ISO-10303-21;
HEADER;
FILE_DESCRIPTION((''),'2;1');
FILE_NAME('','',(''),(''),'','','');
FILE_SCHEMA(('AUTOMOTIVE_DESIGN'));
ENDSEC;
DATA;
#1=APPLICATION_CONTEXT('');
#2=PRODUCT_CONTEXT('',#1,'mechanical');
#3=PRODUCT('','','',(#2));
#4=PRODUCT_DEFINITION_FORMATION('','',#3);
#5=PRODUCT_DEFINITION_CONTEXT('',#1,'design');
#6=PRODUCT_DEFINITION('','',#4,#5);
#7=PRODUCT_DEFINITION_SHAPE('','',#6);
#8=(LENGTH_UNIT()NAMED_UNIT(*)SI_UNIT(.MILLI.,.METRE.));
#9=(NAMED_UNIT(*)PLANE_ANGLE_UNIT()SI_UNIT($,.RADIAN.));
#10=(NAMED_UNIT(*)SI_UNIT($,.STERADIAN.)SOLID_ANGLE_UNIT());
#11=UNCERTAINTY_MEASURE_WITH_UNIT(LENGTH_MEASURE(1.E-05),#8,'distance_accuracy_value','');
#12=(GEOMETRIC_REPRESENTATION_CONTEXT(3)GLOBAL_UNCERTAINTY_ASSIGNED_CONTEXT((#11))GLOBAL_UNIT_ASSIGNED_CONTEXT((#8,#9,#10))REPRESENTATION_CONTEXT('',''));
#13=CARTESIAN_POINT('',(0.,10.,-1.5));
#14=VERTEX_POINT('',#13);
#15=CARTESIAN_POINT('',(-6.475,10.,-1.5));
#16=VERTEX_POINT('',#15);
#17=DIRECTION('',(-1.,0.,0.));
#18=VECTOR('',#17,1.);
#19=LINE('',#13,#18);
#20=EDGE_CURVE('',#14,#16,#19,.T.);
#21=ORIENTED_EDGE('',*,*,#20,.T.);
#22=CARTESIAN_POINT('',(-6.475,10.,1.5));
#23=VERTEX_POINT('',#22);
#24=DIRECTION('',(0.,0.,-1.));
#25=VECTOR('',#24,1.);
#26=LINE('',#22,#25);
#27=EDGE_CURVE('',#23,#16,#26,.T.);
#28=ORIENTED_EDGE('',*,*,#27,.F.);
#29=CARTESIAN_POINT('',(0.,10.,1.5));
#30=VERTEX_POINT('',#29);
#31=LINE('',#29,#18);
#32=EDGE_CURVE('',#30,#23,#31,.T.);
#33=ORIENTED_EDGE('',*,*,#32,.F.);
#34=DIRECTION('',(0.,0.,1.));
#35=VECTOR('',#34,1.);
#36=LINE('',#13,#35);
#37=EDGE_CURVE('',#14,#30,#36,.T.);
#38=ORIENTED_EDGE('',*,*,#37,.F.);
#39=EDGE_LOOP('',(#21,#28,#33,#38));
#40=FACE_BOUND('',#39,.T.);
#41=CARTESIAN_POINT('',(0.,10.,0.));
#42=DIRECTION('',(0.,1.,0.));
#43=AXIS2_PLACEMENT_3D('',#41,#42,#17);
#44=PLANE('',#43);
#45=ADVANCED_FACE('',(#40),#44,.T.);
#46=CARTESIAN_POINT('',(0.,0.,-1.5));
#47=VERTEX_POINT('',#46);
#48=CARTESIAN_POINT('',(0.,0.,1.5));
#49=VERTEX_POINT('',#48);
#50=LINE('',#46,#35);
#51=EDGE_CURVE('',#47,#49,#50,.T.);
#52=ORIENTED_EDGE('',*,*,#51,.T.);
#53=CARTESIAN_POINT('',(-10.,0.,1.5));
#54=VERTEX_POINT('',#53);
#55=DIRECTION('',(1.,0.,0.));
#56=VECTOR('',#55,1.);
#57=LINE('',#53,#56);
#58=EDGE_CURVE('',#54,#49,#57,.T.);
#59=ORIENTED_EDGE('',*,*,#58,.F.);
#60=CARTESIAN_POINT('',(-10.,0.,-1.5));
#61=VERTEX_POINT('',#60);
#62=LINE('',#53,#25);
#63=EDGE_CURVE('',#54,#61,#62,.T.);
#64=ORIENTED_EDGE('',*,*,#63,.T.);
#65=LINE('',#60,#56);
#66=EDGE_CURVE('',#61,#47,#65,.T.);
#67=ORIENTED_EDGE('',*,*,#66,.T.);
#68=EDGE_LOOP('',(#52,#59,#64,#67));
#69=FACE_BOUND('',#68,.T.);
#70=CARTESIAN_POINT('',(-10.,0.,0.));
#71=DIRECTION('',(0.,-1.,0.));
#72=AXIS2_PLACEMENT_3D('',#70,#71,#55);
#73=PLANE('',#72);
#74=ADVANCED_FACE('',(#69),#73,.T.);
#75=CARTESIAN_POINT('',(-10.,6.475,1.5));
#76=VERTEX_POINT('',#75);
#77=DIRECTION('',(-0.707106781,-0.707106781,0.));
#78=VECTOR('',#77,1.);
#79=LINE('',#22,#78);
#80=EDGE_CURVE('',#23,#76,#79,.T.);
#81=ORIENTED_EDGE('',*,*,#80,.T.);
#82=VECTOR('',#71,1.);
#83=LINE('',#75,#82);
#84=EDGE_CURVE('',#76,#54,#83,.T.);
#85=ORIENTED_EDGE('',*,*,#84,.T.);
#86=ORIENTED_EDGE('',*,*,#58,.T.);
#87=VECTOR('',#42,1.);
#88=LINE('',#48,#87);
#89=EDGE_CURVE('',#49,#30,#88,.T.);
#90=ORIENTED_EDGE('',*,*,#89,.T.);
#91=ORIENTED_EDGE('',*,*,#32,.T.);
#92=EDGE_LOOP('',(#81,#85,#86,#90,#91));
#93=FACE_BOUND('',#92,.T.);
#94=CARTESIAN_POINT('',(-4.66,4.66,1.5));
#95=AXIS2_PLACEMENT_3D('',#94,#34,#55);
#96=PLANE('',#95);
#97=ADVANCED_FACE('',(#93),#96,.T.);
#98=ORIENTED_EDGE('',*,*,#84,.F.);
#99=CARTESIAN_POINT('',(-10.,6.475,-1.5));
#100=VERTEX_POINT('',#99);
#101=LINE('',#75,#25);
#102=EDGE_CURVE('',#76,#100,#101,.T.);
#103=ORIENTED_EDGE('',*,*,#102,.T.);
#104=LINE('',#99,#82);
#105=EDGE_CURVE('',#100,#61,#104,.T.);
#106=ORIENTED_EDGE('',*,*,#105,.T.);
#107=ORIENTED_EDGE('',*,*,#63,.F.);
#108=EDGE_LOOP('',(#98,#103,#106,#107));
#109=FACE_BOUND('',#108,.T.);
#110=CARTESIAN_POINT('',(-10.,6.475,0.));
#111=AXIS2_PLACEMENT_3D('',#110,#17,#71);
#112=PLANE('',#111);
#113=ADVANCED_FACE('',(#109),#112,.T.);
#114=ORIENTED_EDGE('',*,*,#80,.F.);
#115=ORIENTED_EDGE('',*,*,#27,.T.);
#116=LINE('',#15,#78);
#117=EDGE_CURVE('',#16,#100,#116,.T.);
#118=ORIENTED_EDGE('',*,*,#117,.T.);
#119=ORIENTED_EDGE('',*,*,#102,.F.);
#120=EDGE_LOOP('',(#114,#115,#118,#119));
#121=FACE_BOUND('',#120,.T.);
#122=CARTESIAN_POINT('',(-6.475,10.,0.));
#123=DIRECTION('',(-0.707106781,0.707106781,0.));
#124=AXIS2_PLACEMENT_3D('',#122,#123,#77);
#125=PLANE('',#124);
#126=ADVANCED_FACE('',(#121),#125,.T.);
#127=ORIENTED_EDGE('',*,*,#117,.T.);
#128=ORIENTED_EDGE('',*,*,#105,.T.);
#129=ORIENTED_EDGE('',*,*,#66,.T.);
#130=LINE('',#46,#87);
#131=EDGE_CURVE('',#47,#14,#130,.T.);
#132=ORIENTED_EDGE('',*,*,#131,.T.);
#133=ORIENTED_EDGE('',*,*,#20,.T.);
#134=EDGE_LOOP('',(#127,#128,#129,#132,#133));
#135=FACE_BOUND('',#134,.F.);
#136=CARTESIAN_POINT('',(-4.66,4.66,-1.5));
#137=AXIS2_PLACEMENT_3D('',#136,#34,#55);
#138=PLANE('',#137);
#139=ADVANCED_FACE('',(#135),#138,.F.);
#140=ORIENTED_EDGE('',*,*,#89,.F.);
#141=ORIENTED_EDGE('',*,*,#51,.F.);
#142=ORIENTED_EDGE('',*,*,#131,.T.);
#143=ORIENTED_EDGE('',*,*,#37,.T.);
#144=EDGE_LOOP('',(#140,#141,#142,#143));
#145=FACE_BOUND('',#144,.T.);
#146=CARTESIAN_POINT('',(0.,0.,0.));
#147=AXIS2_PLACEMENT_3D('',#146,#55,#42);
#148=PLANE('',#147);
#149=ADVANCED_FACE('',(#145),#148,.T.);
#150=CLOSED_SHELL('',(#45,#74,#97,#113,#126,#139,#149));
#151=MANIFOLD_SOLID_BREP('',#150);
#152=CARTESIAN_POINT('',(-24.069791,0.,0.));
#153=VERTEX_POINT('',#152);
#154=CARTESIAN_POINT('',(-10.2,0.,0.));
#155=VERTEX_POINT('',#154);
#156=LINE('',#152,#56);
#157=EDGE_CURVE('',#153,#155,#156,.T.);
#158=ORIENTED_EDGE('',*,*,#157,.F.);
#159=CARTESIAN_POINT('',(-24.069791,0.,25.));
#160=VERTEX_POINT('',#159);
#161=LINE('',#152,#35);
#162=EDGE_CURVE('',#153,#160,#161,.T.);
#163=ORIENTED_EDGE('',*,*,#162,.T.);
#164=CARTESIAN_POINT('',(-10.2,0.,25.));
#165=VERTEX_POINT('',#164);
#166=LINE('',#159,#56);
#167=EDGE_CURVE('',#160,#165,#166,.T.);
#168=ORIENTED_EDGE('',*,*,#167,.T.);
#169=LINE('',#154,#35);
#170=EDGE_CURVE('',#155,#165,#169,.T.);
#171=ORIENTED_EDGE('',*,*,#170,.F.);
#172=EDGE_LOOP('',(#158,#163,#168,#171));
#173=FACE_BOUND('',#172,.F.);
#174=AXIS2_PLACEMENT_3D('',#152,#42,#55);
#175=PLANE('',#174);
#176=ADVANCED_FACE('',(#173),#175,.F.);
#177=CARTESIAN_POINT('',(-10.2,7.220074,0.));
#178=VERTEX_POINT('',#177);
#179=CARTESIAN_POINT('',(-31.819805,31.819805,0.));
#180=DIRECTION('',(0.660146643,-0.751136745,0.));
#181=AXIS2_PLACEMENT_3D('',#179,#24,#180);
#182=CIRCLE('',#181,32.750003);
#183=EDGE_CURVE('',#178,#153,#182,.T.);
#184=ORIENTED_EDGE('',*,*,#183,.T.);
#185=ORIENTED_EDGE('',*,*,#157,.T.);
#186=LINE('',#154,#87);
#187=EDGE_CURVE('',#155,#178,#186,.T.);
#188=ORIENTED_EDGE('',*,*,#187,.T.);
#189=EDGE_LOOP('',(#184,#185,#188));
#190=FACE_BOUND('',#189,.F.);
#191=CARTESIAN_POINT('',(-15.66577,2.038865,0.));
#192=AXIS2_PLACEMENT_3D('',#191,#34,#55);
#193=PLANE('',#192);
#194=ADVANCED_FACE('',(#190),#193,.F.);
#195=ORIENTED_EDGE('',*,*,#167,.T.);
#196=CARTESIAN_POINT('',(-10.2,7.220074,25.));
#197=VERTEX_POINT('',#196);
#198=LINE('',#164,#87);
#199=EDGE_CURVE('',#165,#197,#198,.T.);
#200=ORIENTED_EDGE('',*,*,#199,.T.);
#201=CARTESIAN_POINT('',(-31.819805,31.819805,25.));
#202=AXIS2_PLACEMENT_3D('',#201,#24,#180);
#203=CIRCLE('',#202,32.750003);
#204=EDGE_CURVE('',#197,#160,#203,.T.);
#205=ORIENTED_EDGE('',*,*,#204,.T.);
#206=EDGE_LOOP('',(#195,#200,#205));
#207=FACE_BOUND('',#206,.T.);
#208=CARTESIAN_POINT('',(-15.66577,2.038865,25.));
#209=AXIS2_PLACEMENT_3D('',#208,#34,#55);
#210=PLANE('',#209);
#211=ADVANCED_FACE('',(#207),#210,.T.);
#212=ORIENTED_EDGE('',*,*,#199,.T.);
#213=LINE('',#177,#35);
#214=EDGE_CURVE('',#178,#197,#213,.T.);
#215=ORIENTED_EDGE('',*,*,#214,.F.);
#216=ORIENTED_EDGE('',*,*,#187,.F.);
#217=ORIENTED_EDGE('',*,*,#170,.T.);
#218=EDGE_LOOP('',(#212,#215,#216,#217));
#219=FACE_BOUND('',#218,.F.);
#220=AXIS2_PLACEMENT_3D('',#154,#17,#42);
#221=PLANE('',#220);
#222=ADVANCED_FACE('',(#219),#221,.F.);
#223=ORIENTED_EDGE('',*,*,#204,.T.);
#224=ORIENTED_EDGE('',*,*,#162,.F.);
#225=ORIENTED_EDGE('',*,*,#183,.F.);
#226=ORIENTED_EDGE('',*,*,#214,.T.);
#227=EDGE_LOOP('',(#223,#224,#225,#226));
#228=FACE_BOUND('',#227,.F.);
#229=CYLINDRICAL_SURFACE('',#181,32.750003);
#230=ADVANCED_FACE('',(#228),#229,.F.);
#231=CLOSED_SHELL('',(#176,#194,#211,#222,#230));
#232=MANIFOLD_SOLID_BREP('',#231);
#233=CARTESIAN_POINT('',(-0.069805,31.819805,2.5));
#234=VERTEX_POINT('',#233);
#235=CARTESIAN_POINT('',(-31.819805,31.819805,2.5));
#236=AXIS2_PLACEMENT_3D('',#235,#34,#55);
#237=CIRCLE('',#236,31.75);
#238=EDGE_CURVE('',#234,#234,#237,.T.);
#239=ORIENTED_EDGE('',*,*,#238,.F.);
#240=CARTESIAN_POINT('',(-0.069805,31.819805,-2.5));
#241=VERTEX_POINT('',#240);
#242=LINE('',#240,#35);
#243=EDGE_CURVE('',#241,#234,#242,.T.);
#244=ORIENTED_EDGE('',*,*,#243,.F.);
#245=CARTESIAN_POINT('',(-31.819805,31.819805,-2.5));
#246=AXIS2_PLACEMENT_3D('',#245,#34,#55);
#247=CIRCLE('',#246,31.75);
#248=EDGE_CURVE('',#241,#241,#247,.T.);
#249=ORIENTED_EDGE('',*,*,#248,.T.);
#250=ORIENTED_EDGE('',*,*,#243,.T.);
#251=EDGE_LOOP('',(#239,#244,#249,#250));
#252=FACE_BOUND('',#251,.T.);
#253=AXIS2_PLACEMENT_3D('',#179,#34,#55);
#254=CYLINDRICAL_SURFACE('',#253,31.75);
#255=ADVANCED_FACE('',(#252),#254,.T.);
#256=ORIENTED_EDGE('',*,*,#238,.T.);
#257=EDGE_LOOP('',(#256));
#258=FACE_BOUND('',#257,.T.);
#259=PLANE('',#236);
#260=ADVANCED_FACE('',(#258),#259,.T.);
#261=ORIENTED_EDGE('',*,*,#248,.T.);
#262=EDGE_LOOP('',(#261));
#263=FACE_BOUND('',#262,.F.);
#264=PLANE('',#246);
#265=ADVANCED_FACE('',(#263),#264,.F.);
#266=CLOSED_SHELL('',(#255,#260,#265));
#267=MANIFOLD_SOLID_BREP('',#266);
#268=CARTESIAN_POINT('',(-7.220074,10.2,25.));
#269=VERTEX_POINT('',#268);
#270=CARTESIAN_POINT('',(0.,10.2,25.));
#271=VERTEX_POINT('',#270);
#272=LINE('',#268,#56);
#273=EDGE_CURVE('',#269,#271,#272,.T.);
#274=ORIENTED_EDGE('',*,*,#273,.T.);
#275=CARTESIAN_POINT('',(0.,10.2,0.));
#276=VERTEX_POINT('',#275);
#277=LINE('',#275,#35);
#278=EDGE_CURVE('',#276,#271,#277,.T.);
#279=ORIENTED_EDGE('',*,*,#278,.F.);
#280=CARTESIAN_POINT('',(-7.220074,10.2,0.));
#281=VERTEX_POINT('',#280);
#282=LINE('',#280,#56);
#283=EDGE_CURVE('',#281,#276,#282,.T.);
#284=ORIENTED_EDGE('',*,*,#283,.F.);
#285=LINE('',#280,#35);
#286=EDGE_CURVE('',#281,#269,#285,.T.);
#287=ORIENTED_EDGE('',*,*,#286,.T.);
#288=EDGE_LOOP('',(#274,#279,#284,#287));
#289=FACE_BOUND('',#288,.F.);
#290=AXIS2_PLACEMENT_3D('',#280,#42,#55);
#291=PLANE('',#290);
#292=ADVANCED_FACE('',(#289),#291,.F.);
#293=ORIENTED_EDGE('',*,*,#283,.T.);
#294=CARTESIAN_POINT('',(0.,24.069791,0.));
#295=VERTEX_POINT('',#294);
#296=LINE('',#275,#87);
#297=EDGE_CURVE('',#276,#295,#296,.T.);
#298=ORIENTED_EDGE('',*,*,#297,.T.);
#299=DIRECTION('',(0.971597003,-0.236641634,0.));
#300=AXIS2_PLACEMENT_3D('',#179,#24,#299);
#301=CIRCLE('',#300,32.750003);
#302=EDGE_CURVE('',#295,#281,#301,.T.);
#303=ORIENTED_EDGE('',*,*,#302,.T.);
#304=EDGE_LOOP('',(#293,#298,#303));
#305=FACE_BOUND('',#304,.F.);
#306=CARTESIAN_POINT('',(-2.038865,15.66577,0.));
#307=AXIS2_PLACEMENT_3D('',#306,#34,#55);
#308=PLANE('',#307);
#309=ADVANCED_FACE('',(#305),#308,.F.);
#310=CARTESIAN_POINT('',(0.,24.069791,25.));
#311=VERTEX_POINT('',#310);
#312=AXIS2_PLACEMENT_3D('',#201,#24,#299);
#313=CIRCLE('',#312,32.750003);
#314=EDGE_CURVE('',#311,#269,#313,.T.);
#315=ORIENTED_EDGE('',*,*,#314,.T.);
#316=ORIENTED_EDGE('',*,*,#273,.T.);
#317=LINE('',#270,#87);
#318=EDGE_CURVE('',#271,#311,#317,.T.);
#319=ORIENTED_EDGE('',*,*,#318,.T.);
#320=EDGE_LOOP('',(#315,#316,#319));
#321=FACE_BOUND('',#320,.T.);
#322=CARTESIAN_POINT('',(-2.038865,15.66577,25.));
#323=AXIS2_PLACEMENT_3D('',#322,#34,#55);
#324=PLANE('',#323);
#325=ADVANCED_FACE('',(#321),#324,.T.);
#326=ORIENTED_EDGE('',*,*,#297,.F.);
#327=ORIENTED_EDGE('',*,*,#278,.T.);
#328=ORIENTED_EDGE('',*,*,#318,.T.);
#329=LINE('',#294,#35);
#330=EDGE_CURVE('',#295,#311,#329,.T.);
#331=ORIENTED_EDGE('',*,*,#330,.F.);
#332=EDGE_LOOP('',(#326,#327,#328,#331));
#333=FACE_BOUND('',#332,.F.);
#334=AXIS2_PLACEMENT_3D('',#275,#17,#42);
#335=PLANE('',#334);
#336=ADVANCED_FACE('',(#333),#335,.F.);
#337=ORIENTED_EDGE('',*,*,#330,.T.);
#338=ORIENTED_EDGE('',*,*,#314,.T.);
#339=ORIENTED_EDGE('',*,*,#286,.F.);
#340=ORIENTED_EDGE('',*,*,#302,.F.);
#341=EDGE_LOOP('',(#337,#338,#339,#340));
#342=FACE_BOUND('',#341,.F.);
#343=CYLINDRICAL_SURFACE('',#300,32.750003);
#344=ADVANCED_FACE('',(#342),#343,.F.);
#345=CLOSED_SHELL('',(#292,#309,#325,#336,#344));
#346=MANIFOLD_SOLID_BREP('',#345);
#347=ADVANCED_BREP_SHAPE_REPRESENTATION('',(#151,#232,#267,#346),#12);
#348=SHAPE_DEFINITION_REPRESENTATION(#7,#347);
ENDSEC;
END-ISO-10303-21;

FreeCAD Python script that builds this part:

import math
import FreeCAD as App
import Part
import Sketcher

V = App.Vector
Q = App.Units.Quantity

doc = App.newDocument("Part")
body = doc.addObject("PartDesign::Body", "Body")

sketch1 = body.newObject("Sketcher::SketchObject", "Sketch")
sketch1.AttachmentSupport = (doc.getObject("XY_Plane"), [""])
sketch1.MapMode = "FlatFace"
sketch1.addGeometry(Part.Circle(V(-32, 32, 0), V(0, 0, 1), 32), False)
sketch1.addConstraint([
    Sketcher.Constraint("Diameter", 0, Q("63.5 mm")),
    Sketcher.Constraint("DistanceX", 0, 3, -1, 1, Q("31.819805 mm")),
    Sketcher.Constraint("DistanceY", -1, 1, 0, 3, Q("31.819805 mm")),
])
pad1 = body.newObject("PartDesign::Pad", "Pad")
pad1.Profile = sketch1
pad1.Length = 5
pad1.Midplane = True
body2 = doc.addObject("PartDesign::Body", "Body001")

sketch2 = body2.newObject("Sketcher::SketchObject", "Sketch001")
sketch2.AttachmentSupport = (doc.getObject("XY_Plane001"), [""])
sketch2.MapMode = "FlatFace"
sketch2.addGeometry([
    Part.LineSegment(V(-10, 0, 0), V(0, 0, 0)),
    Part.LineSegment(V(0, 0, 0), V(0, 10, 0)),
    Part.LineSegment(V(0, 10, 0), V(-6.5, 10, 0)),
    Part.LineSegment(V(-6.5, 10, 0), V(-10, 6.5, 0)),
    Part.LineSegment(V(-10, 6.5, 0), V(-10, 0, 0)),
], False)
sketch2.addConstraint([
    Sketcher.Constraint("Coincident", 0, 2, 1, 1),
    Sketcher.Constraint("Coincident", 1, 2, 2, 1),
    Sketcher.Constraint("Coincident", 2, 2, 3, 1),
    Sketcher.Constraint("Coincident", 3, 2, 4, 1),
    Sketcher.Constraint("Coincident", 4, 2, 0, 1),
    Sketcher.Constraint("Horizontal", 0),
    Sketcher.Constraint("Vertical", 1),
    Sketcher.Constraint("Horizontal", 2),
    Sketcher.Constraint("Vertical", 4),
    Sketcher.Constraint("Coincident", 0, 2, -1, 1),
    Sketcher.Constraint("Equal", 0, 1),
    Sketcher.Constraint("Equal", 2, 4),
    Sketcher.Constraint("DistanceX", 0, 1, 0, 2, Q("10 mm")),
    Sketcher.Constraint("DistanceX", 2, 2, 2, 1, Q("6.475 mm")),
])
pad2 = body2.newObject("PartDesign::Pad", "Pad001")
pad2.Profile = sketch2
pad2.Length = 3
pad2.Midplane = True
body3 = doc.addObject("PartDesign::Body", "Body002")

sketch3 = body3.newObject("Sketcher::SketchObject", "Sketch002")
sketch3.AttachmentSupport = (doc.getObject("XY_Plane002"), [""])
sketch3.MapMode = "FlatFace"
sketch3.addGeometry([
    Part.ArcOfCircle(Part.Circle(V(-32, 32, 0), V(0, 0, 1), 33), math.radians(-76), math.radians(-49)),
    Part.LineSegment(V(-24, 0, 0), V(-10, 0, 0)),
    Part.LineSegment(V(-10, 0, 0), V(-10, 7, 0)),
], False)
sketch3.addConstraint([
    Sketcher.Constraint("Coincident", 0, 1, 1, 1),
    Sketcher.Constraint("Coincident", 1, 2, 2, 1),
    Sketcher.Constraint("Coincident", 2, 2, 0, 2),
    Sketcher.Constraint("Horizontal", 1),
    Sketcher.Constraint("Vertical", 2),
    Sketcher.Constraint("PointOnObject", 0, 1, -1),
    Sketcher.Constraint("DistanceX", 1, 2, -1, 1, Q("10.2 mm")),
    Sketcher.Constraint("Radius", 0, Q("32.750003 mm")),
    Sketcher.Constraint("DistanceX", 1, 1, 1, 2, Q("13.86979 mm")),
    Sketcher.Constraint("DistanceY", 2, 1, 2, 2, Q("7.220074 mm")),
])
pad3 = body3.newObject("PartDesign::Pad", "Pad002")
pad3.Profile = sketch3
pad3.Length = 25
body4 = doc.addObject("PartDesign::Body", "Body003")

sketch4 = body4.newObject("Sketcher::SketchObject", "Sketch003")
sketch4.AttachmentSupport = (doc.getObject("XY_Plane003"), [""])
sketch4.MapMode = "FlatFace"
sketch4.addGeometry([
    Part.LineSegment(V(-7, 10, 0), V(0, 10, 0)),
    Part.LineSegment(V(0, 10, 0), V(0, 24, 0)),
    Part.ArcOfCircle(Part.Circle(V(-32, 32, 0), V(0, 0, 1), 33), math.radians(-41), math.radians(-14)),
], False)
sketch4.addConstraint([
    Sketcher.Constraint("Coincident", 0, 2, 1, 1),
    Sketcher.Constraint("Coincident", 1, 2, 2, 2),
    Sketcher.Constraint("Coincident", 2, 1, 0, 1),
    Sketcher.Constraint("Horizontal", 0),
    Sketcher.Constraint("Vertical", 1),
    Sketcher.Constraint("PointOnObject", 0, 2, -2),
    Sketcher.Constraint("DistanceY", -1, 1, 0, 2, Q("10.2 mm")),
    Sketcher.Constraint("Radius", 2, Q("32.750003 mm")),
    Sketcher.Constraint("DistanceY", 1, 1, 1, 2, Q("13.86979 mm")),
    Sketcher.Constraint("DistanceX", 0, 1, 0, 2, Q("7.220074 mm")),
])
pad4 = body4.newObject("PartDesign::Pad", "Pad003")
pad4.Profile = sketch4
pad4.Length = 25

doc.recompute()
